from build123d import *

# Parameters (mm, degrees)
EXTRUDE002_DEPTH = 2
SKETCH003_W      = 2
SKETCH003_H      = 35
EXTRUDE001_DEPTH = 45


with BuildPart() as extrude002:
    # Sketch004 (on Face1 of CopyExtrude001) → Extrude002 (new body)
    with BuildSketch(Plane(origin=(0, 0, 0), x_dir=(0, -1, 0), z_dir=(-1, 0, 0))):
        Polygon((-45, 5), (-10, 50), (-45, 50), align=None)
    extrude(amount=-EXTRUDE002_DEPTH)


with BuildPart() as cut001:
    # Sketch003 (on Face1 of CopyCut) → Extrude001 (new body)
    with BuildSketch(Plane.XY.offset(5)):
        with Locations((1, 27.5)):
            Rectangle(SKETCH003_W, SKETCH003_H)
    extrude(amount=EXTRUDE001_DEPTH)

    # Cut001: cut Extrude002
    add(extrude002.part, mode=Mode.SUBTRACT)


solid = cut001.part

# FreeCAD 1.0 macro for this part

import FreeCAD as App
import Part
import Sketcher

V = App.Vector


def add_polygon(sketch, points):
    """Adds a closed chain of lines whose ends are joined by coincident constraints."""
    first, n = sketch.GeometryCount, len(points)
    for a, b in zip(points, points[1:] + points[:1]):
        sketch.addGeometry(Part.LineSegment(App.Vector(*a, 0), App.Vector(*b, 0)), False)
    for i in range(n):
        sketch.addConstraint(Sketcher.Constraint("Coincident", first + i, 2, first + (i + 1) % n, 1))

doc = App.newDocument("Part")
body = doc.addObject("PartDesign::Body", "Body")

# Sketch on YZ plane
sketch1 = body.newObject("Sketcher::SketchObject", "Sketch")
sketch1.AttachmentSupport = (doc.getObject("YZ_Plane"), [""])
sketch1.MapMode = "FlatFace"
add_polygon(sketch1, [(45, 5), (10, 50), (45, 50)])  # lines 0-2
sketch1.addConstraint(Sketcher.Constraint("Horizontal", 1))
sketch1.addConstraint(Sketcher.Constraint("Vertical", 2))
sketch1.addConstraint(Sketcher.Constraint("DistanceX", 1, 1, 1, 2, 35.0))
sketch1.addConstraint(Sketcher.Constraint("DistanceY", 2, 2, 2, 1, 45.0))
sketch1.addConstraint(Sketcher.Constraint("DistanceX", -1, 1, 0, 2, 10.0))
sketch1.addConstraint(Sketcher.Constraint("DistanceY", -1, 1, 0, 2, 50.0))
pad1 = body.newObject("PartDesign::Pad", "Pad")
pad1.Profile = sketch1
pad1.Length = 2
body2 = doc.addObject("PartDesign::Body", "Body001")

# Sketch on XY plane
sketch2 = body2.newObject("Sketcher::SketchObject", "Sketch001")
sketch2.AttachmentSupport = (doc.getObject("XY_Plane001"), [""])
sketch2.MapMode = "FlatFace"
sketch2.AttachmentOffset = App.Placement(V(0, 0, 5), App.Rotation())
add_polygon(sketch2, [(0, 45), (0, 10), (2, 10), (2, 45)])  # lines 0-3
sketch2.addConstraint(Sketcher.Constraint("Vertical", 0))
sketch2.addConstraint(Sketcher.Constraint("Horizontal", 1))
sketch2.addConstraint(Sketcher.Constraint("Vertical", 2))
sketch2.addConstraint(Sketcher.Constraint("Horizontal", 3))
sketch2.addConstraint(Sketcher.Constraint("PointOnObject", 0, 2, -2))
sketch2.addConstraint(Sketcher.Constraint("DistanceX", 1, 1, 1, 2, 2.0))
sketch2.addConstraint(Sketcher.Constraint("DistanceY", 0, 2, 0, 1, 35.0))
sketch2.addConstraint(Sketcher.Constraint("DistanceY", -1, 1, 0, 2, 10.0))
pad2 = body2.newObject("PartDesign::Pad", "Pad001")
pad2.Profile = sketch2
pad2.Length = 45
doc.recompute()

boolean = body2.newObject("PartDesign::Boolean", "Boolean")
boolean.Type = "Cut"
boolean.addObjects([body])

doc.recompute()
